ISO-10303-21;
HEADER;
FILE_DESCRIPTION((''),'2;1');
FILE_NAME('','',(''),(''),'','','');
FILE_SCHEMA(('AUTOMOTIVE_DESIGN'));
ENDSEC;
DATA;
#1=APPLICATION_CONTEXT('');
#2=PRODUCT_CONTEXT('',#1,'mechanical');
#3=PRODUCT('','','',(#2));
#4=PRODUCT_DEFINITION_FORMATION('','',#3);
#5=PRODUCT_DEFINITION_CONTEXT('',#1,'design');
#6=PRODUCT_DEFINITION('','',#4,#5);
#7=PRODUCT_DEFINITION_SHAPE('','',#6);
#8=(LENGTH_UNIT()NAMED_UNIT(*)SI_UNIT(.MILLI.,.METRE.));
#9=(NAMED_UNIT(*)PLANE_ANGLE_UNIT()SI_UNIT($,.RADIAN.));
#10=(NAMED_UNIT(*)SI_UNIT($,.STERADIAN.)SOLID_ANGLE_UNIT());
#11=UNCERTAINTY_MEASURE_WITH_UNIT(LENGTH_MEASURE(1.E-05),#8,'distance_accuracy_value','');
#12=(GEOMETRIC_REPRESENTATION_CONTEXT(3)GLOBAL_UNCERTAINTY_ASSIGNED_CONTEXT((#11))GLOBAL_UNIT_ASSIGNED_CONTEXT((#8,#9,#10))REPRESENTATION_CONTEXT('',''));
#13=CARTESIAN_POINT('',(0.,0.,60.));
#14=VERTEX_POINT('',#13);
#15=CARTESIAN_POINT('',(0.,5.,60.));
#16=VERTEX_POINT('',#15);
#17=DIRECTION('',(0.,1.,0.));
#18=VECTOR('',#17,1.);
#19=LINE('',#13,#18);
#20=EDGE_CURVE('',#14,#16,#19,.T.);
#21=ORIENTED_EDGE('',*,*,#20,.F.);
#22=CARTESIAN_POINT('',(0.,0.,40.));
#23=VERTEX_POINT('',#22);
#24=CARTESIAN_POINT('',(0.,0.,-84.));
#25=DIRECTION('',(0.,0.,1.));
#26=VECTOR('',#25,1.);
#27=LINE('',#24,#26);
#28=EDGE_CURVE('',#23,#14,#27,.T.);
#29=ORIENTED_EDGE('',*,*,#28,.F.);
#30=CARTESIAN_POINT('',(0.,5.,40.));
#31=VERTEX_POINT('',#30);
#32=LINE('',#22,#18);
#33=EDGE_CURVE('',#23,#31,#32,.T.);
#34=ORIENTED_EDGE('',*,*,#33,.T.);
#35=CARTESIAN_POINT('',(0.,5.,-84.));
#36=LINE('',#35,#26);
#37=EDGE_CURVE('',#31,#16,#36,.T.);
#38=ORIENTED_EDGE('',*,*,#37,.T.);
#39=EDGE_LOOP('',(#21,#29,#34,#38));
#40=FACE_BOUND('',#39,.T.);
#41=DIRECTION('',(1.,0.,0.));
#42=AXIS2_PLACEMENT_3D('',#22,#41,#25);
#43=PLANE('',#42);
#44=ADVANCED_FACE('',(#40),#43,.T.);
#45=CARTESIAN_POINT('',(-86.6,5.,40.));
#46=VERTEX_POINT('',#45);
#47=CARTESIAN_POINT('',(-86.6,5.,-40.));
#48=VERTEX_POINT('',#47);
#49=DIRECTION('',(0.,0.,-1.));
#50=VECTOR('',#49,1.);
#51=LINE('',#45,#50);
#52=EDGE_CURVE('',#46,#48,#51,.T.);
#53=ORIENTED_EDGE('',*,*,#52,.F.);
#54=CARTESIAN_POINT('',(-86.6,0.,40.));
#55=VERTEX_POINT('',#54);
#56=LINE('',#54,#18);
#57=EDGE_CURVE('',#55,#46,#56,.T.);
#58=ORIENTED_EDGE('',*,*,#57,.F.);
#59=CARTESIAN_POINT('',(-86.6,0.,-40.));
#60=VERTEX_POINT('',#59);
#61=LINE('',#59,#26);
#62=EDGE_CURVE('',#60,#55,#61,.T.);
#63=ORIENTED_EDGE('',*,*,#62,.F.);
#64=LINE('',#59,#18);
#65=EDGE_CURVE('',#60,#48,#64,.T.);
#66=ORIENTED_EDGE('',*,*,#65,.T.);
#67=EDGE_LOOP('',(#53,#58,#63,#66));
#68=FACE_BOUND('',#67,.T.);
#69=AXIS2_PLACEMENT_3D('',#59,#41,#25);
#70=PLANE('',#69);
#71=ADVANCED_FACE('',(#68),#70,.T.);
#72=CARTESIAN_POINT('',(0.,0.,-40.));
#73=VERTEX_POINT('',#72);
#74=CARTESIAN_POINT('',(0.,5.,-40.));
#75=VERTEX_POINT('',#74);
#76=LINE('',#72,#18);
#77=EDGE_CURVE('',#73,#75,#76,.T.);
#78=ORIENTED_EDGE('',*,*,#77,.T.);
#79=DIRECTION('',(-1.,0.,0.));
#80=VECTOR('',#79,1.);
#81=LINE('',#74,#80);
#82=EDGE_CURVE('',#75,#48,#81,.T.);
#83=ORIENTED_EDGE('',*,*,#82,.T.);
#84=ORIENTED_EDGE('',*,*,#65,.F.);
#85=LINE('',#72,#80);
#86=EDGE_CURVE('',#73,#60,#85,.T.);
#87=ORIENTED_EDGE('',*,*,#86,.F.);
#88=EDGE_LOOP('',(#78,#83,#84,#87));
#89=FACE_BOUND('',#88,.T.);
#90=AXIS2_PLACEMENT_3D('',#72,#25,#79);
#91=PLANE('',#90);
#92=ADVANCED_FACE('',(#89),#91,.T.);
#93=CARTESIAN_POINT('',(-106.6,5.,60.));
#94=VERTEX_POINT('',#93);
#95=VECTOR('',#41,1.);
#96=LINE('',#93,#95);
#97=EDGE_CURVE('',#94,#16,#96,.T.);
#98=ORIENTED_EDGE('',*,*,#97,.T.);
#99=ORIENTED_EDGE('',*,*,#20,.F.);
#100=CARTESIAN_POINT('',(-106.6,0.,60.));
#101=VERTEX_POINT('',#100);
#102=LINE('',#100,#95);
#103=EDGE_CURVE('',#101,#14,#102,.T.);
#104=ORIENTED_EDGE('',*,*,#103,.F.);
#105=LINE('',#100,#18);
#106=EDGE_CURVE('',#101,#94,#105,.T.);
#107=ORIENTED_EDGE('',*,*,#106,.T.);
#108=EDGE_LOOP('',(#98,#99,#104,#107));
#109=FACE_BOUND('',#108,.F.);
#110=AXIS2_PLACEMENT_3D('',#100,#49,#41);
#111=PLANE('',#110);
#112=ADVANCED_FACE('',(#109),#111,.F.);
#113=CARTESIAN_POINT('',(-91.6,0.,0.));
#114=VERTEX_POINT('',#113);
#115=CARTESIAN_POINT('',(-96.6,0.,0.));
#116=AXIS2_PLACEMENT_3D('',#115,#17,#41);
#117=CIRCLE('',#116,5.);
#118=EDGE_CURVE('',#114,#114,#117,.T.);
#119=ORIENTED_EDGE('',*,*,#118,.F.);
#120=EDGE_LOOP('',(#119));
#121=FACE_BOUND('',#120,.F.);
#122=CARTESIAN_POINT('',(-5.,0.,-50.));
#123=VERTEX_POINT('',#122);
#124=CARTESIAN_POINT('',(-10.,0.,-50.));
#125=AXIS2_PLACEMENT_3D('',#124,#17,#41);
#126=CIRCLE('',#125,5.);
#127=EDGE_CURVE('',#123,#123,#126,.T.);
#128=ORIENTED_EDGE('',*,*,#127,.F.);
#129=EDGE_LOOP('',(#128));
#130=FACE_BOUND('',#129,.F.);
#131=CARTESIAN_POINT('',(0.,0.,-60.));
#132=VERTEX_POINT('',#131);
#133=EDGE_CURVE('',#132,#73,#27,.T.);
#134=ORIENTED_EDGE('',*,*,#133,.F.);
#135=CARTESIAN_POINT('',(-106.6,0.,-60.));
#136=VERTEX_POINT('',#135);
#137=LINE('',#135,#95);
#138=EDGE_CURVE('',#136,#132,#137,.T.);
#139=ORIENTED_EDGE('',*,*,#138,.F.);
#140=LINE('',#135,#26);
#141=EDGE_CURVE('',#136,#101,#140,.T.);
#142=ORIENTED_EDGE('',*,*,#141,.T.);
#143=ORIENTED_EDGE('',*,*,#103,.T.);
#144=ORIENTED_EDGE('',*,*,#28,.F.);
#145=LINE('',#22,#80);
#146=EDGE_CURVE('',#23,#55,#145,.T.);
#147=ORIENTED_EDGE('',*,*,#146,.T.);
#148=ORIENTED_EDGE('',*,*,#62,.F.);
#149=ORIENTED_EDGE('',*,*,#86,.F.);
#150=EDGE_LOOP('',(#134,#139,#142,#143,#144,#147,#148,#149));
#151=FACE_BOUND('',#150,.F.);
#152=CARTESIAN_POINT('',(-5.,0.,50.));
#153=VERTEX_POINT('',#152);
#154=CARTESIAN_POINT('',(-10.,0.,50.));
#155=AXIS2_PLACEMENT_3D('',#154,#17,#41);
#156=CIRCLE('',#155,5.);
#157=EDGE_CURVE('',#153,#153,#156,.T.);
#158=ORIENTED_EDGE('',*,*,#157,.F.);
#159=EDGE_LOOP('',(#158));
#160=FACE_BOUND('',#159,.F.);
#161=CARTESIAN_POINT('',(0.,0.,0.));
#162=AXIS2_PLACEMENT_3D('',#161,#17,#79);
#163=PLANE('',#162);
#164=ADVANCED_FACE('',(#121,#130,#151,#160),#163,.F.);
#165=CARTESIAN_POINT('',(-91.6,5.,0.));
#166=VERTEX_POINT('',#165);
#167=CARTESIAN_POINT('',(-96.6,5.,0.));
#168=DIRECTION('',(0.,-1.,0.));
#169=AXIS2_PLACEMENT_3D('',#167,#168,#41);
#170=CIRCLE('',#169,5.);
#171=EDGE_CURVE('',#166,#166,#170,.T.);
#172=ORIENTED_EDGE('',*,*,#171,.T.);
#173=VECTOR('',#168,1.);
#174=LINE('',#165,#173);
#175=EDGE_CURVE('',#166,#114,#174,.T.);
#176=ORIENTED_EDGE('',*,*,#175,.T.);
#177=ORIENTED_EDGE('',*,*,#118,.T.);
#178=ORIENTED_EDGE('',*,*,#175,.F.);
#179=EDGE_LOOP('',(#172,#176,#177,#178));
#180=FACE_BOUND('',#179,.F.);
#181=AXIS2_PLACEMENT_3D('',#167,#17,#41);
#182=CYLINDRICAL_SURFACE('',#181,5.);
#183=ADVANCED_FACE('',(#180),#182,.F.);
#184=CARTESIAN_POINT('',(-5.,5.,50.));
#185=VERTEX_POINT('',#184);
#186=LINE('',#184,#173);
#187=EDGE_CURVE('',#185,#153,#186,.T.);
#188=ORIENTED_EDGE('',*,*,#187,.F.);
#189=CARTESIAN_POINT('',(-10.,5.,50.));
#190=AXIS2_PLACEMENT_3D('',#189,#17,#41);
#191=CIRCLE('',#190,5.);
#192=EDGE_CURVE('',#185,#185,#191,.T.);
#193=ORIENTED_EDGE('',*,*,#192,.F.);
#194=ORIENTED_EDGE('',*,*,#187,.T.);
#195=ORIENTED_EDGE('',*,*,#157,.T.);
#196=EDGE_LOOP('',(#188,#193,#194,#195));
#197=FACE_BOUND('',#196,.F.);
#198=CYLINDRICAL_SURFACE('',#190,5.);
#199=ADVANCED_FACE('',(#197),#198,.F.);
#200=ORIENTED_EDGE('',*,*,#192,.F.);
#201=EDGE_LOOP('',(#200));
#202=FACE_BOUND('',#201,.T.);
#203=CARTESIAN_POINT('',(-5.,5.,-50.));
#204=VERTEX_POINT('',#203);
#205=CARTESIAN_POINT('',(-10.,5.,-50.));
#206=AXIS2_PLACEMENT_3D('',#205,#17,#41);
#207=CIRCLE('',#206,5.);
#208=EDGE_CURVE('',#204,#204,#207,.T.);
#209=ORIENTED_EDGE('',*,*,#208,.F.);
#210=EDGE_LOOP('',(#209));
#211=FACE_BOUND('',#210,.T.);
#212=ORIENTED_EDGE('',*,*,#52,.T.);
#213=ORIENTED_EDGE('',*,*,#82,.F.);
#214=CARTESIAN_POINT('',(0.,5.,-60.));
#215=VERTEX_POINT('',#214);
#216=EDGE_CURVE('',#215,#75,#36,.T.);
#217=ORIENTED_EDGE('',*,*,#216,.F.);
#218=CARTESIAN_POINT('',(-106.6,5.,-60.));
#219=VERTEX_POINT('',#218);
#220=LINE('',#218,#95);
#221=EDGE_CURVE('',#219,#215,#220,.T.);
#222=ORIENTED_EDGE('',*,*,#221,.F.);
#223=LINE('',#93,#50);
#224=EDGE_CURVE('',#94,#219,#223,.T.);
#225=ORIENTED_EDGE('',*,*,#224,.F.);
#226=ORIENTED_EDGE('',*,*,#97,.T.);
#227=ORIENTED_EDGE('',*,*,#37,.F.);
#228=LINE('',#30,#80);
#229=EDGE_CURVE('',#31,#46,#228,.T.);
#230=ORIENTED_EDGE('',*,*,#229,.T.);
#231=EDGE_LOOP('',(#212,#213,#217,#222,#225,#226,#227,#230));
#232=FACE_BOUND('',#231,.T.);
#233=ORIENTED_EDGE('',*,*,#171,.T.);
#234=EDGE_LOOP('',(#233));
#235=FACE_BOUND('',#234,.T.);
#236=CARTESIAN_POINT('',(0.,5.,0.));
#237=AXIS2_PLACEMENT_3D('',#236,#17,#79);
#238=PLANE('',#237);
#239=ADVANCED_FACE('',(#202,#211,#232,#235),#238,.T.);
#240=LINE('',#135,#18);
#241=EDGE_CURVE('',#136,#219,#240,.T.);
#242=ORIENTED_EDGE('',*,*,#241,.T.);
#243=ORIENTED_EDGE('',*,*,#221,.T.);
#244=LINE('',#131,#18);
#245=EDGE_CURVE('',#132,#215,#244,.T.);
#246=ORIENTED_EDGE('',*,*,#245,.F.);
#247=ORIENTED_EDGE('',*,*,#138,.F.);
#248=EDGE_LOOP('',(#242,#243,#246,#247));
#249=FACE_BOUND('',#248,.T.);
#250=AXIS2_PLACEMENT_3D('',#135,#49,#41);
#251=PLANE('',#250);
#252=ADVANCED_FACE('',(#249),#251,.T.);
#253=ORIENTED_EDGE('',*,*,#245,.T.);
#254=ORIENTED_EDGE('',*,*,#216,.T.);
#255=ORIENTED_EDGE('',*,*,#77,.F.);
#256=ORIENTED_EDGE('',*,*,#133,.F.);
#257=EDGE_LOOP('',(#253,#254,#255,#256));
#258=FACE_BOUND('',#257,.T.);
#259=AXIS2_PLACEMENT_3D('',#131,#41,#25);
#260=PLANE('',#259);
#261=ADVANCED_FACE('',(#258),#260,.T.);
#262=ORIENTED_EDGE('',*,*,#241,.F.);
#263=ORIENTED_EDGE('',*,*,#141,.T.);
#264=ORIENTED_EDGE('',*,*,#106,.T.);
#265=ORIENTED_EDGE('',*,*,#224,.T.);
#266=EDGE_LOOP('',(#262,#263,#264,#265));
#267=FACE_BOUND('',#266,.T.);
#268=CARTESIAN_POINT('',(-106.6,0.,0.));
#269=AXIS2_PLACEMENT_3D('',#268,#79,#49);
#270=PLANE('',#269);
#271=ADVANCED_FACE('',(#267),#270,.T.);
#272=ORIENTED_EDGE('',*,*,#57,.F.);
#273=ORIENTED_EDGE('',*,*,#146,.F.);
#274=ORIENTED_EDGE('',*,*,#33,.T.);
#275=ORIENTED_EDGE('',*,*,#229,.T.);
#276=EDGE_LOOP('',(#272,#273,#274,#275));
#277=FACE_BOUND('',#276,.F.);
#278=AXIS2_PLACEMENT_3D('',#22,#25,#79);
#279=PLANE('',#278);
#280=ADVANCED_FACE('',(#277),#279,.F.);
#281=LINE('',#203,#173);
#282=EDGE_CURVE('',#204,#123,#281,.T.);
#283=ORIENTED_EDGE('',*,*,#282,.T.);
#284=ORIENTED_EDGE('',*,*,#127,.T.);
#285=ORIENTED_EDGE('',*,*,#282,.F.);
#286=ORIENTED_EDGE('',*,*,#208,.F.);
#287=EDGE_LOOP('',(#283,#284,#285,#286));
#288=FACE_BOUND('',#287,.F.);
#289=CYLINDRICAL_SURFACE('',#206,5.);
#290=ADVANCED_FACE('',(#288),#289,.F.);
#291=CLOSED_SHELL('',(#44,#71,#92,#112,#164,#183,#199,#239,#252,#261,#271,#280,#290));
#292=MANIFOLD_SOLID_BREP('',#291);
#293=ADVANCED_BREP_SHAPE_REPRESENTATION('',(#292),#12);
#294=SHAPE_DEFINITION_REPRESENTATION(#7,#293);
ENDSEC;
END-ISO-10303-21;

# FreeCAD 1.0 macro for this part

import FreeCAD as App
import Part
import Sketcher

V = App.Vector

doc = App.newDocument("Part")
body = doc.addObject("PartDesign::Body", "Body")

# Sketch on XZ plane
sketch1 = doc.addObject("Sketcher::SketchObject", "Sketch")
body.addObject(sketch1)
sketch1.AttachmentSupport = (doc.XZ_Plane, [""])
sketch1.MapMode = "FlatFace"
sketch1.addGeometry(Part.LineSegment(V(-107, -60, 0), V(-107, 60, 0)), False)
sketch1.addGeometry(Part.LineSegment(V(-107, 60, 0), V(0, 60, 0)), False)
sketch1.addGeometry(Part.LineSegment(V(0, 60, 0), V(0, 40, 0)), False)
sketch1.addGeometry(Part.LineSegment(V(0, 40, 0), V(-87, 40, 0)), False)
sketch1.addGeometry(Part.LineSegment(V(-87, 40, 0), V(-87, -40, 0)), False)
sketch1.addGeometry(Part.LineSegment(V(-87, -40, 0), V(0, -40, 0)), False)
sketch1.addGeometry(Part.LineSegment(V(0, -40, 0), V(0, -60, 0)), False)
sketch1.addGeometry(Part.LineSegment(V(0, -60, 0), V(-107, -60, 0)), False)
sketch1.addConstraint(Sketcher.Constraint("Coincident", 0, 2, 1, 1))
sketch1.addConstraint(Sketcher.Constraint("Coincident", 1, 2, 2, 1))
sketch1.addConstraint(Sketcher.Constraint("Coincident", 2, 2, 3, 1))
sketch1.addConstraint(Sketcher.Constraint("Coincident", 3, 2, 4, 1))
sketch1.addConstraint(Sketcher.Constraint("Coincident", 4, 2, 5, 1))
sketch1.addConstraint(Sketcher.Constraint("Coincident", 5, 2, 6, 1))
sketch1.addConstraint(Sketcher.Constraint("Coincident", 6, 2, 7, 1))
sketch1.addConstraint(Sketcher.Constraint("Coincident", 7, 2, 0, 1))
sketch1.addConstraint(Sketcher.Constraint("Vertical", 0))
sketch1.addConstraint(Sketcher.Constraint("Horizontal", 1))
sketch1.addConstraint(Sketcher.Constraint("Vertical", 2))
sketch1.addConstraint(Sketcher.Constraint("Horizontal", 3))
sketch1.addConstraint(Sketcher.Constraint("Vertical", 4))
sketch1.addConstraint(Sketcher.Constraint("Horizontal", 5))
sketch1.addConstraint(Sketcher.Constraint("Vertical", 6))
sketch1.addConstraint(Sketcher.Constraint("Horizontal", 7))
sketch1.addConstraint(Sketcher.Constraint("Symmetric", 2, 2, 5, 2, -1, 1))
sketch1.addConstraint(Sketcher.Constraint("Symmetric", 1, 2, 6, 2, -1))
sketch1.addConstraint(Sketcher.Constraint("DistanceY", 2, 2, 2, 1, 20.0))
sketch1.addConstraint(Sketcher.Constraint("DistanceX", 1, 1, 1, 2, 106.6))
sketch1.addConstraint(Sketcher.Constraint("DistanceY", -1, 1, 0, 2, 60.0))
sketch1.addConstraint(Sketcher.Constraint("DistanceX", 0, 2, 3, 2, 20.0))
pad1 = doc.addObject("PartDesign::Pad", "Pad")
body.addObject(pad1)
pad1.Profile = sketch1
pad1.Length = 5
pad1.Reversed = True

# Sketch on XZ plane
sketch2 = doc.addObject("Sketcher::SketchObject", "Sketch001")
body.addObject(sketch2)
sketch2.AttachmentSupport = (doc.XZ_Plane, [""])
sketch2.MapMode = "FlatFace"
sketch2.AttachmentOffset = App.Placement(V(0, 0, -5), App.Rotation())
sketch2.addGeometry(Part.Circle(V(-10, 50, 0), V(0, 0, 1), 5), False)
sketch2.addGeometry(Part.Circle(V(-97, 0, 0), V(0, 0, 1), 5), False)
sketch2.addGeometry(Part.Circle(V(-10, -50, 0), V(0, 0, 1), 5), False)
sketch2.addConstraint(Sketcher.Constraint("Equal", 0, 1))
sketch2.addConstraint(Sketcher.Constraint("Equal", 1, 2))
sketch2.addConstraint(Sketcher.Constraint("Symmetric", 0, 3, 2, 3, -1))
sketch2.addConstraint(Sketcher.Constraint("PointOnObject", 1, 3, -1))
sketch2.addConstraint(Sketcher.Constraint("Diameter", 0, 10.0))
sketch2.addConstraint(Sketcher.Constraint("DistanceX", 0, 3, -1, 1, 10.0))
sketch2.addConstraint(Sketcher.Constraint("DistanceY", -1, 1, 0, 3, 50.0))
sketch2.addConstraint(Sketcher.Constraint("DistanceX", 1, 3, -1, 1, 96.6))
pocket1 = doc.addObject("PartDesign::Pocket", "Pocket")
body.addObject(pocket1)
pocket1.Profile = sketch2
pocket1.Length = 5
pocket1.Reversed = True

doc.recompute()
